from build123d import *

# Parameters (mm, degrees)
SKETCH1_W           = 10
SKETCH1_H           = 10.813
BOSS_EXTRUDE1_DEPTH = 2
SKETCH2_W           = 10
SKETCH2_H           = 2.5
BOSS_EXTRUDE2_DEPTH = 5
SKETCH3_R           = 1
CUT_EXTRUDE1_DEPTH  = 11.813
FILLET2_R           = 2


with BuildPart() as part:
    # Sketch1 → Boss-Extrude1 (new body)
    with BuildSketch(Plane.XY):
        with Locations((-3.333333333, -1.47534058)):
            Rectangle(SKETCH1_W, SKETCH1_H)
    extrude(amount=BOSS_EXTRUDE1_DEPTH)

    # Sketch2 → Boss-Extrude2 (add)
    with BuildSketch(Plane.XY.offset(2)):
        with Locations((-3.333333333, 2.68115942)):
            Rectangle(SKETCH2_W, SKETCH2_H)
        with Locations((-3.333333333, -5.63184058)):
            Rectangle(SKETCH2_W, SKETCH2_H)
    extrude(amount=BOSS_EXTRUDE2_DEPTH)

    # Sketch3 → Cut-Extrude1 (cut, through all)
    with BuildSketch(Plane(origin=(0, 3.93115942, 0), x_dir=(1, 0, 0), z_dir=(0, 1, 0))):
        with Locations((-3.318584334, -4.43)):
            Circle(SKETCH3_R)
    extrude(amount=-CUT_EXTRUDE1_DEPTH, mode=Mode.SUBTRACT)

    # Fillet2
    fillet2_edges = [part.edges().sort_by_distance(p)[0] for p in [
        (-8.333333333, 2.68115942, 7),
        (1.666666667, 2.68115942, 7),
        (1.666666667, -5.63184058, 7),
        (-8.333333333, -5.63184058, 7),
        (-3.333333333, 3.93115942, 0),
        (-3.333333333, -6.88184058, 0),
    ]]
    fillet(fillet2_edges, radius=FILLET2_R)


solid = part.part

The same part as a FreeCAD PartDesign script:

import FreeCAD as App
import Part
import Sketcher

V = App.Vector
Q = App.Units.Quantity


def edges_at(feature, points):
    """Names of the edges that pass closest to the given points."""
    edges = feature.Shape.Edges
    near = lambda p: min(range(len(edges)), key=lambda i: edges[i].distToShape(Part.Vertex(*p))[0])
    return sorted({f"Edge{near(p) + 1}" for p in points})

doc = App.newDocument("Part")
body = doc.addObject("PartDesign::Body", "Body")

# Sketch on XY plane
sketch1 = body.newObject("Sketcher::SketchObject", "Sketch")
sketch1.AttachmentSupport = (doc.getObject("XY_Plane"), [""])
sketch1.MapMode = "FlatFace"
sketch1.addGeometry(Part.LineSegment(V(-8, 4, 0), V(-8, -7, 0)), False)
sketch1.addGeometry(Part.LineSegment(V(-8, -7, 0), V(2, -7, 0)), False)
sketch1.addGeometry(Part.LineSegment(V(2, -7, 0), V(2, 4, 0)), False)
sketch1.addGeometry(Part.LineSegment(V(2, 4, 0), V(-8, 4, 0)), False)
sketch1.addConstraint(Sketcher.Constraint("Coincident", 0, 2, 1, 1))
sketch1.addConstraint(Sketcher.Constraint("Coincident", 1, 2, 2, 1))
sketch1.addConstraint(Sketcher.Constraint("Coincident", 2, 2, 3, 1))
sketch1.addConstraint(Sketcher.Constraint("Coincident", 3, 2, 0, 1))
sketch1.addConstraint(Sketcher.Constraint("Vertical", 0))
sketch1.addConstraint(Sketcher.Constraint("Horizontal", 1))
sketch1.addConstraint(Sketcher.Constraint("Vertical", 2))
sketch1.addConstraint(Sketcher.Constraint("Horizontal", 3))
sketch1.addConstraint(Sketcher.Constraint("DistanceX", 1, 1, 1, 2, Q("10 mm")))
sketch1.addConstraint(Sketcher.Constraint("DistanceY", 0, 2, 0, 1, Q("10.813 mm")))
sketch1.addConstraint(Sketcher.Constraint("DistanceY", 0, 2, -1, 1, Q("6.881841 mm")))
sketch1.addConstraint(Sketcher.Constraint("DistanceX", 0, 2, -1, 1, Q("8.333333 mm")))
pad1 = body.newObject("PartDesign::Pad", "Pad")
pad1.Profile = sketch1
pad1.Length = 2

# Sketch on XY plane
sketch2 = body.newObject("Sketcher::SketchObject", "Sketch001")
sketch2.AttachmentSupport = (doc.getObject("XY_Plane"), [""])
sketch2.MapMode = "FlatFace"
sketch2.AttachmentOffset = App.Placement(V(0, 0, 2), App.Rotation())
sketch2.addGeometry(Part.LineSegment(V(-8.3, 3.9, 0), V(-8.3, 1.4, 0)), False)
sketch2.addGeometry(Part.LineSegment(V(-8.3, 1.4, 0), V(1.7, 1.4, 0)), False)
sketch2.addGeometry(Part.LineSegment(V(1.7, 1.4, 0), V(1.7, 3.9, 0)), False)
sketch2.addGeometry(Part.LineSegment(V(1.7, 3.9, 0), V(-8.3, 3.9, 0)), False)
sketch2.addGeometry(Part.LineSegment(V(-8.3, -4.4, 0), V(-8.3, -6.9, 0)), False)
sketch2.addGeometry(Part.LineSegment(V(-8.3, -6.9, 0), V(1.7, -6.9, 0)), False)
sketch2.addGeometry(Part.LineSegment(V(1.7, -6.9, 0), V(1.7, -4.4, 0)), False)
sketch2.addGeometry(Part.LineSegment(V(1.7, -4.4, 0), V(-8.3, -4.4, 0)), False)
sketch2.addConstraint(Sketcher.Constraint("Coincident", 0, 2, 1, 1))
sketch2.addConstraint(Sketcher.Constraint("Coincident", 1, 2, 2, 1))
sketch2.addConstraint(Sketcher.Constraint("Coincident", 2, 2, 3, 1))
sketch2.addConstraint(Sketcher.Constraint("Coincident", 3, 2, 0, 1))
sketch2.addConstraint(Sketcher.Constraint("Coincident", 4, 2, 5, 1))
sketch2.addConstraint(Sketcher.Constraint("Coincident", 5, 2, 6, 1))
sketch2.addConstraint(Sketcher.Constraint("Coincident", 6, 2, 7, 1))
sketch2.addConstraint(Sketcher.Constraint("Coincident", 7, 2, 4, 1))
sketch2.addConstraint(Sketcher.Constraint("Vertical", 0))
sketch2.addConstraint(Sketcher.Constraint("Horizontal", 1))
sketch2.addConstraint(Sketcher.Constraint("Vertical", 2))
sketch2.addConstraint(Sketcher.Constraint("Horizontal", 3))
sketch2.addConstraint(Sketcher.Constraint("Vertical", 4))
sketch2.addConstraint(Sketcher.Constraint("Horizontal", 5))
sketch2.addConstraint(Sketcher.Constraint("Vertical", 6))
sketch2.addConstraint(Sketcher.Constraint("Horizontal", 7))
sketch2.addConstraint(Sketcher.Constraint("Vertical", 3, 2, 4, 2))
sketch2.addConstraint(Sketcher.Constraint("Vertical", 2, 2, 5, 2))
sketch2.addConstraint(Sketcher.Constraint("Equal", 2, 4))
sketch2.addConstraint(Sketcher.Constraint("DistanceX", 1, 1, 1, 2, Q("10 mm")))
sketch2.addConstraint(Sketcher.Constraint("DistanceY", 0, 2, 0, 1, Q("2.5 mm")))
sketch2.addConstraint(Sketcher.Constraint("DistanceY", 4, 2, 0, 2, Q("8.313 mm")))
sketch2.addConstraint(Sketcher.Constraint("DistanceY", -1, 1, 0, 2, Q("1.431159 mm")))
sketch2.addConstraint(Sketcher.Constraint("DistanceX", 0, 2, -1, 1, Q("8.333333 mm")))
pad2 = body.newObject("PartDesign::Pad", "Pad001")
pad2.Profile = sketch2
pad2.Length = 5

# Sketch on XZ plane
sketch3 = body.newObject("Sketcher::SketchObject", "Sketch002")
sketch3.AttachmentSupport = (doc.getObject("XZ_Plane"), [""])
sketch3.MapMode = "FlatFace"
sketch3.AttachmentOffset = App.Placement(V(0, 0, -3.931159), App.Rotation())
sketch3.addGeometry(Part.Circle(V(-3.3, 4.4, 0), V(0, 0, 1), 1), False)
sketch3.addConstraint(Sketcher.Constraint("Diameter", 0, Q("2 mm")))
sketch3.addConstraint(Sketcher.Constraint("DistanceY", -1, 1, 0, 3, Q("4.43 mm")))
sketch3.addConstraint(Sketcher.Constraint("DistanceX", 0, 3, -1, 1, Q("3.318584 mm")))
pocket1 = body.newObject("PartDesign::Pocket", "Pocket")
pocket1.Profile = sketch3
pocket1.Type = "ThroughAll"
pocket1.Reversed = True
doc.recompute()

fillet = body.newObject("PartDesign::Fillet", "Fillet")
fillet.Base = (pocket1, edges_at(pocket1, [
    (-8.333, 2.681, 7),
    (1.667, 2.681, 7),
    (1.667, -5.632, 7),
    (-8.333, -5.632, 7),
    (-3.333, 3.931, 0),
    (-3.333, -6.882, 0),
]))
fillet.Radius = 2

doc.recompute()
